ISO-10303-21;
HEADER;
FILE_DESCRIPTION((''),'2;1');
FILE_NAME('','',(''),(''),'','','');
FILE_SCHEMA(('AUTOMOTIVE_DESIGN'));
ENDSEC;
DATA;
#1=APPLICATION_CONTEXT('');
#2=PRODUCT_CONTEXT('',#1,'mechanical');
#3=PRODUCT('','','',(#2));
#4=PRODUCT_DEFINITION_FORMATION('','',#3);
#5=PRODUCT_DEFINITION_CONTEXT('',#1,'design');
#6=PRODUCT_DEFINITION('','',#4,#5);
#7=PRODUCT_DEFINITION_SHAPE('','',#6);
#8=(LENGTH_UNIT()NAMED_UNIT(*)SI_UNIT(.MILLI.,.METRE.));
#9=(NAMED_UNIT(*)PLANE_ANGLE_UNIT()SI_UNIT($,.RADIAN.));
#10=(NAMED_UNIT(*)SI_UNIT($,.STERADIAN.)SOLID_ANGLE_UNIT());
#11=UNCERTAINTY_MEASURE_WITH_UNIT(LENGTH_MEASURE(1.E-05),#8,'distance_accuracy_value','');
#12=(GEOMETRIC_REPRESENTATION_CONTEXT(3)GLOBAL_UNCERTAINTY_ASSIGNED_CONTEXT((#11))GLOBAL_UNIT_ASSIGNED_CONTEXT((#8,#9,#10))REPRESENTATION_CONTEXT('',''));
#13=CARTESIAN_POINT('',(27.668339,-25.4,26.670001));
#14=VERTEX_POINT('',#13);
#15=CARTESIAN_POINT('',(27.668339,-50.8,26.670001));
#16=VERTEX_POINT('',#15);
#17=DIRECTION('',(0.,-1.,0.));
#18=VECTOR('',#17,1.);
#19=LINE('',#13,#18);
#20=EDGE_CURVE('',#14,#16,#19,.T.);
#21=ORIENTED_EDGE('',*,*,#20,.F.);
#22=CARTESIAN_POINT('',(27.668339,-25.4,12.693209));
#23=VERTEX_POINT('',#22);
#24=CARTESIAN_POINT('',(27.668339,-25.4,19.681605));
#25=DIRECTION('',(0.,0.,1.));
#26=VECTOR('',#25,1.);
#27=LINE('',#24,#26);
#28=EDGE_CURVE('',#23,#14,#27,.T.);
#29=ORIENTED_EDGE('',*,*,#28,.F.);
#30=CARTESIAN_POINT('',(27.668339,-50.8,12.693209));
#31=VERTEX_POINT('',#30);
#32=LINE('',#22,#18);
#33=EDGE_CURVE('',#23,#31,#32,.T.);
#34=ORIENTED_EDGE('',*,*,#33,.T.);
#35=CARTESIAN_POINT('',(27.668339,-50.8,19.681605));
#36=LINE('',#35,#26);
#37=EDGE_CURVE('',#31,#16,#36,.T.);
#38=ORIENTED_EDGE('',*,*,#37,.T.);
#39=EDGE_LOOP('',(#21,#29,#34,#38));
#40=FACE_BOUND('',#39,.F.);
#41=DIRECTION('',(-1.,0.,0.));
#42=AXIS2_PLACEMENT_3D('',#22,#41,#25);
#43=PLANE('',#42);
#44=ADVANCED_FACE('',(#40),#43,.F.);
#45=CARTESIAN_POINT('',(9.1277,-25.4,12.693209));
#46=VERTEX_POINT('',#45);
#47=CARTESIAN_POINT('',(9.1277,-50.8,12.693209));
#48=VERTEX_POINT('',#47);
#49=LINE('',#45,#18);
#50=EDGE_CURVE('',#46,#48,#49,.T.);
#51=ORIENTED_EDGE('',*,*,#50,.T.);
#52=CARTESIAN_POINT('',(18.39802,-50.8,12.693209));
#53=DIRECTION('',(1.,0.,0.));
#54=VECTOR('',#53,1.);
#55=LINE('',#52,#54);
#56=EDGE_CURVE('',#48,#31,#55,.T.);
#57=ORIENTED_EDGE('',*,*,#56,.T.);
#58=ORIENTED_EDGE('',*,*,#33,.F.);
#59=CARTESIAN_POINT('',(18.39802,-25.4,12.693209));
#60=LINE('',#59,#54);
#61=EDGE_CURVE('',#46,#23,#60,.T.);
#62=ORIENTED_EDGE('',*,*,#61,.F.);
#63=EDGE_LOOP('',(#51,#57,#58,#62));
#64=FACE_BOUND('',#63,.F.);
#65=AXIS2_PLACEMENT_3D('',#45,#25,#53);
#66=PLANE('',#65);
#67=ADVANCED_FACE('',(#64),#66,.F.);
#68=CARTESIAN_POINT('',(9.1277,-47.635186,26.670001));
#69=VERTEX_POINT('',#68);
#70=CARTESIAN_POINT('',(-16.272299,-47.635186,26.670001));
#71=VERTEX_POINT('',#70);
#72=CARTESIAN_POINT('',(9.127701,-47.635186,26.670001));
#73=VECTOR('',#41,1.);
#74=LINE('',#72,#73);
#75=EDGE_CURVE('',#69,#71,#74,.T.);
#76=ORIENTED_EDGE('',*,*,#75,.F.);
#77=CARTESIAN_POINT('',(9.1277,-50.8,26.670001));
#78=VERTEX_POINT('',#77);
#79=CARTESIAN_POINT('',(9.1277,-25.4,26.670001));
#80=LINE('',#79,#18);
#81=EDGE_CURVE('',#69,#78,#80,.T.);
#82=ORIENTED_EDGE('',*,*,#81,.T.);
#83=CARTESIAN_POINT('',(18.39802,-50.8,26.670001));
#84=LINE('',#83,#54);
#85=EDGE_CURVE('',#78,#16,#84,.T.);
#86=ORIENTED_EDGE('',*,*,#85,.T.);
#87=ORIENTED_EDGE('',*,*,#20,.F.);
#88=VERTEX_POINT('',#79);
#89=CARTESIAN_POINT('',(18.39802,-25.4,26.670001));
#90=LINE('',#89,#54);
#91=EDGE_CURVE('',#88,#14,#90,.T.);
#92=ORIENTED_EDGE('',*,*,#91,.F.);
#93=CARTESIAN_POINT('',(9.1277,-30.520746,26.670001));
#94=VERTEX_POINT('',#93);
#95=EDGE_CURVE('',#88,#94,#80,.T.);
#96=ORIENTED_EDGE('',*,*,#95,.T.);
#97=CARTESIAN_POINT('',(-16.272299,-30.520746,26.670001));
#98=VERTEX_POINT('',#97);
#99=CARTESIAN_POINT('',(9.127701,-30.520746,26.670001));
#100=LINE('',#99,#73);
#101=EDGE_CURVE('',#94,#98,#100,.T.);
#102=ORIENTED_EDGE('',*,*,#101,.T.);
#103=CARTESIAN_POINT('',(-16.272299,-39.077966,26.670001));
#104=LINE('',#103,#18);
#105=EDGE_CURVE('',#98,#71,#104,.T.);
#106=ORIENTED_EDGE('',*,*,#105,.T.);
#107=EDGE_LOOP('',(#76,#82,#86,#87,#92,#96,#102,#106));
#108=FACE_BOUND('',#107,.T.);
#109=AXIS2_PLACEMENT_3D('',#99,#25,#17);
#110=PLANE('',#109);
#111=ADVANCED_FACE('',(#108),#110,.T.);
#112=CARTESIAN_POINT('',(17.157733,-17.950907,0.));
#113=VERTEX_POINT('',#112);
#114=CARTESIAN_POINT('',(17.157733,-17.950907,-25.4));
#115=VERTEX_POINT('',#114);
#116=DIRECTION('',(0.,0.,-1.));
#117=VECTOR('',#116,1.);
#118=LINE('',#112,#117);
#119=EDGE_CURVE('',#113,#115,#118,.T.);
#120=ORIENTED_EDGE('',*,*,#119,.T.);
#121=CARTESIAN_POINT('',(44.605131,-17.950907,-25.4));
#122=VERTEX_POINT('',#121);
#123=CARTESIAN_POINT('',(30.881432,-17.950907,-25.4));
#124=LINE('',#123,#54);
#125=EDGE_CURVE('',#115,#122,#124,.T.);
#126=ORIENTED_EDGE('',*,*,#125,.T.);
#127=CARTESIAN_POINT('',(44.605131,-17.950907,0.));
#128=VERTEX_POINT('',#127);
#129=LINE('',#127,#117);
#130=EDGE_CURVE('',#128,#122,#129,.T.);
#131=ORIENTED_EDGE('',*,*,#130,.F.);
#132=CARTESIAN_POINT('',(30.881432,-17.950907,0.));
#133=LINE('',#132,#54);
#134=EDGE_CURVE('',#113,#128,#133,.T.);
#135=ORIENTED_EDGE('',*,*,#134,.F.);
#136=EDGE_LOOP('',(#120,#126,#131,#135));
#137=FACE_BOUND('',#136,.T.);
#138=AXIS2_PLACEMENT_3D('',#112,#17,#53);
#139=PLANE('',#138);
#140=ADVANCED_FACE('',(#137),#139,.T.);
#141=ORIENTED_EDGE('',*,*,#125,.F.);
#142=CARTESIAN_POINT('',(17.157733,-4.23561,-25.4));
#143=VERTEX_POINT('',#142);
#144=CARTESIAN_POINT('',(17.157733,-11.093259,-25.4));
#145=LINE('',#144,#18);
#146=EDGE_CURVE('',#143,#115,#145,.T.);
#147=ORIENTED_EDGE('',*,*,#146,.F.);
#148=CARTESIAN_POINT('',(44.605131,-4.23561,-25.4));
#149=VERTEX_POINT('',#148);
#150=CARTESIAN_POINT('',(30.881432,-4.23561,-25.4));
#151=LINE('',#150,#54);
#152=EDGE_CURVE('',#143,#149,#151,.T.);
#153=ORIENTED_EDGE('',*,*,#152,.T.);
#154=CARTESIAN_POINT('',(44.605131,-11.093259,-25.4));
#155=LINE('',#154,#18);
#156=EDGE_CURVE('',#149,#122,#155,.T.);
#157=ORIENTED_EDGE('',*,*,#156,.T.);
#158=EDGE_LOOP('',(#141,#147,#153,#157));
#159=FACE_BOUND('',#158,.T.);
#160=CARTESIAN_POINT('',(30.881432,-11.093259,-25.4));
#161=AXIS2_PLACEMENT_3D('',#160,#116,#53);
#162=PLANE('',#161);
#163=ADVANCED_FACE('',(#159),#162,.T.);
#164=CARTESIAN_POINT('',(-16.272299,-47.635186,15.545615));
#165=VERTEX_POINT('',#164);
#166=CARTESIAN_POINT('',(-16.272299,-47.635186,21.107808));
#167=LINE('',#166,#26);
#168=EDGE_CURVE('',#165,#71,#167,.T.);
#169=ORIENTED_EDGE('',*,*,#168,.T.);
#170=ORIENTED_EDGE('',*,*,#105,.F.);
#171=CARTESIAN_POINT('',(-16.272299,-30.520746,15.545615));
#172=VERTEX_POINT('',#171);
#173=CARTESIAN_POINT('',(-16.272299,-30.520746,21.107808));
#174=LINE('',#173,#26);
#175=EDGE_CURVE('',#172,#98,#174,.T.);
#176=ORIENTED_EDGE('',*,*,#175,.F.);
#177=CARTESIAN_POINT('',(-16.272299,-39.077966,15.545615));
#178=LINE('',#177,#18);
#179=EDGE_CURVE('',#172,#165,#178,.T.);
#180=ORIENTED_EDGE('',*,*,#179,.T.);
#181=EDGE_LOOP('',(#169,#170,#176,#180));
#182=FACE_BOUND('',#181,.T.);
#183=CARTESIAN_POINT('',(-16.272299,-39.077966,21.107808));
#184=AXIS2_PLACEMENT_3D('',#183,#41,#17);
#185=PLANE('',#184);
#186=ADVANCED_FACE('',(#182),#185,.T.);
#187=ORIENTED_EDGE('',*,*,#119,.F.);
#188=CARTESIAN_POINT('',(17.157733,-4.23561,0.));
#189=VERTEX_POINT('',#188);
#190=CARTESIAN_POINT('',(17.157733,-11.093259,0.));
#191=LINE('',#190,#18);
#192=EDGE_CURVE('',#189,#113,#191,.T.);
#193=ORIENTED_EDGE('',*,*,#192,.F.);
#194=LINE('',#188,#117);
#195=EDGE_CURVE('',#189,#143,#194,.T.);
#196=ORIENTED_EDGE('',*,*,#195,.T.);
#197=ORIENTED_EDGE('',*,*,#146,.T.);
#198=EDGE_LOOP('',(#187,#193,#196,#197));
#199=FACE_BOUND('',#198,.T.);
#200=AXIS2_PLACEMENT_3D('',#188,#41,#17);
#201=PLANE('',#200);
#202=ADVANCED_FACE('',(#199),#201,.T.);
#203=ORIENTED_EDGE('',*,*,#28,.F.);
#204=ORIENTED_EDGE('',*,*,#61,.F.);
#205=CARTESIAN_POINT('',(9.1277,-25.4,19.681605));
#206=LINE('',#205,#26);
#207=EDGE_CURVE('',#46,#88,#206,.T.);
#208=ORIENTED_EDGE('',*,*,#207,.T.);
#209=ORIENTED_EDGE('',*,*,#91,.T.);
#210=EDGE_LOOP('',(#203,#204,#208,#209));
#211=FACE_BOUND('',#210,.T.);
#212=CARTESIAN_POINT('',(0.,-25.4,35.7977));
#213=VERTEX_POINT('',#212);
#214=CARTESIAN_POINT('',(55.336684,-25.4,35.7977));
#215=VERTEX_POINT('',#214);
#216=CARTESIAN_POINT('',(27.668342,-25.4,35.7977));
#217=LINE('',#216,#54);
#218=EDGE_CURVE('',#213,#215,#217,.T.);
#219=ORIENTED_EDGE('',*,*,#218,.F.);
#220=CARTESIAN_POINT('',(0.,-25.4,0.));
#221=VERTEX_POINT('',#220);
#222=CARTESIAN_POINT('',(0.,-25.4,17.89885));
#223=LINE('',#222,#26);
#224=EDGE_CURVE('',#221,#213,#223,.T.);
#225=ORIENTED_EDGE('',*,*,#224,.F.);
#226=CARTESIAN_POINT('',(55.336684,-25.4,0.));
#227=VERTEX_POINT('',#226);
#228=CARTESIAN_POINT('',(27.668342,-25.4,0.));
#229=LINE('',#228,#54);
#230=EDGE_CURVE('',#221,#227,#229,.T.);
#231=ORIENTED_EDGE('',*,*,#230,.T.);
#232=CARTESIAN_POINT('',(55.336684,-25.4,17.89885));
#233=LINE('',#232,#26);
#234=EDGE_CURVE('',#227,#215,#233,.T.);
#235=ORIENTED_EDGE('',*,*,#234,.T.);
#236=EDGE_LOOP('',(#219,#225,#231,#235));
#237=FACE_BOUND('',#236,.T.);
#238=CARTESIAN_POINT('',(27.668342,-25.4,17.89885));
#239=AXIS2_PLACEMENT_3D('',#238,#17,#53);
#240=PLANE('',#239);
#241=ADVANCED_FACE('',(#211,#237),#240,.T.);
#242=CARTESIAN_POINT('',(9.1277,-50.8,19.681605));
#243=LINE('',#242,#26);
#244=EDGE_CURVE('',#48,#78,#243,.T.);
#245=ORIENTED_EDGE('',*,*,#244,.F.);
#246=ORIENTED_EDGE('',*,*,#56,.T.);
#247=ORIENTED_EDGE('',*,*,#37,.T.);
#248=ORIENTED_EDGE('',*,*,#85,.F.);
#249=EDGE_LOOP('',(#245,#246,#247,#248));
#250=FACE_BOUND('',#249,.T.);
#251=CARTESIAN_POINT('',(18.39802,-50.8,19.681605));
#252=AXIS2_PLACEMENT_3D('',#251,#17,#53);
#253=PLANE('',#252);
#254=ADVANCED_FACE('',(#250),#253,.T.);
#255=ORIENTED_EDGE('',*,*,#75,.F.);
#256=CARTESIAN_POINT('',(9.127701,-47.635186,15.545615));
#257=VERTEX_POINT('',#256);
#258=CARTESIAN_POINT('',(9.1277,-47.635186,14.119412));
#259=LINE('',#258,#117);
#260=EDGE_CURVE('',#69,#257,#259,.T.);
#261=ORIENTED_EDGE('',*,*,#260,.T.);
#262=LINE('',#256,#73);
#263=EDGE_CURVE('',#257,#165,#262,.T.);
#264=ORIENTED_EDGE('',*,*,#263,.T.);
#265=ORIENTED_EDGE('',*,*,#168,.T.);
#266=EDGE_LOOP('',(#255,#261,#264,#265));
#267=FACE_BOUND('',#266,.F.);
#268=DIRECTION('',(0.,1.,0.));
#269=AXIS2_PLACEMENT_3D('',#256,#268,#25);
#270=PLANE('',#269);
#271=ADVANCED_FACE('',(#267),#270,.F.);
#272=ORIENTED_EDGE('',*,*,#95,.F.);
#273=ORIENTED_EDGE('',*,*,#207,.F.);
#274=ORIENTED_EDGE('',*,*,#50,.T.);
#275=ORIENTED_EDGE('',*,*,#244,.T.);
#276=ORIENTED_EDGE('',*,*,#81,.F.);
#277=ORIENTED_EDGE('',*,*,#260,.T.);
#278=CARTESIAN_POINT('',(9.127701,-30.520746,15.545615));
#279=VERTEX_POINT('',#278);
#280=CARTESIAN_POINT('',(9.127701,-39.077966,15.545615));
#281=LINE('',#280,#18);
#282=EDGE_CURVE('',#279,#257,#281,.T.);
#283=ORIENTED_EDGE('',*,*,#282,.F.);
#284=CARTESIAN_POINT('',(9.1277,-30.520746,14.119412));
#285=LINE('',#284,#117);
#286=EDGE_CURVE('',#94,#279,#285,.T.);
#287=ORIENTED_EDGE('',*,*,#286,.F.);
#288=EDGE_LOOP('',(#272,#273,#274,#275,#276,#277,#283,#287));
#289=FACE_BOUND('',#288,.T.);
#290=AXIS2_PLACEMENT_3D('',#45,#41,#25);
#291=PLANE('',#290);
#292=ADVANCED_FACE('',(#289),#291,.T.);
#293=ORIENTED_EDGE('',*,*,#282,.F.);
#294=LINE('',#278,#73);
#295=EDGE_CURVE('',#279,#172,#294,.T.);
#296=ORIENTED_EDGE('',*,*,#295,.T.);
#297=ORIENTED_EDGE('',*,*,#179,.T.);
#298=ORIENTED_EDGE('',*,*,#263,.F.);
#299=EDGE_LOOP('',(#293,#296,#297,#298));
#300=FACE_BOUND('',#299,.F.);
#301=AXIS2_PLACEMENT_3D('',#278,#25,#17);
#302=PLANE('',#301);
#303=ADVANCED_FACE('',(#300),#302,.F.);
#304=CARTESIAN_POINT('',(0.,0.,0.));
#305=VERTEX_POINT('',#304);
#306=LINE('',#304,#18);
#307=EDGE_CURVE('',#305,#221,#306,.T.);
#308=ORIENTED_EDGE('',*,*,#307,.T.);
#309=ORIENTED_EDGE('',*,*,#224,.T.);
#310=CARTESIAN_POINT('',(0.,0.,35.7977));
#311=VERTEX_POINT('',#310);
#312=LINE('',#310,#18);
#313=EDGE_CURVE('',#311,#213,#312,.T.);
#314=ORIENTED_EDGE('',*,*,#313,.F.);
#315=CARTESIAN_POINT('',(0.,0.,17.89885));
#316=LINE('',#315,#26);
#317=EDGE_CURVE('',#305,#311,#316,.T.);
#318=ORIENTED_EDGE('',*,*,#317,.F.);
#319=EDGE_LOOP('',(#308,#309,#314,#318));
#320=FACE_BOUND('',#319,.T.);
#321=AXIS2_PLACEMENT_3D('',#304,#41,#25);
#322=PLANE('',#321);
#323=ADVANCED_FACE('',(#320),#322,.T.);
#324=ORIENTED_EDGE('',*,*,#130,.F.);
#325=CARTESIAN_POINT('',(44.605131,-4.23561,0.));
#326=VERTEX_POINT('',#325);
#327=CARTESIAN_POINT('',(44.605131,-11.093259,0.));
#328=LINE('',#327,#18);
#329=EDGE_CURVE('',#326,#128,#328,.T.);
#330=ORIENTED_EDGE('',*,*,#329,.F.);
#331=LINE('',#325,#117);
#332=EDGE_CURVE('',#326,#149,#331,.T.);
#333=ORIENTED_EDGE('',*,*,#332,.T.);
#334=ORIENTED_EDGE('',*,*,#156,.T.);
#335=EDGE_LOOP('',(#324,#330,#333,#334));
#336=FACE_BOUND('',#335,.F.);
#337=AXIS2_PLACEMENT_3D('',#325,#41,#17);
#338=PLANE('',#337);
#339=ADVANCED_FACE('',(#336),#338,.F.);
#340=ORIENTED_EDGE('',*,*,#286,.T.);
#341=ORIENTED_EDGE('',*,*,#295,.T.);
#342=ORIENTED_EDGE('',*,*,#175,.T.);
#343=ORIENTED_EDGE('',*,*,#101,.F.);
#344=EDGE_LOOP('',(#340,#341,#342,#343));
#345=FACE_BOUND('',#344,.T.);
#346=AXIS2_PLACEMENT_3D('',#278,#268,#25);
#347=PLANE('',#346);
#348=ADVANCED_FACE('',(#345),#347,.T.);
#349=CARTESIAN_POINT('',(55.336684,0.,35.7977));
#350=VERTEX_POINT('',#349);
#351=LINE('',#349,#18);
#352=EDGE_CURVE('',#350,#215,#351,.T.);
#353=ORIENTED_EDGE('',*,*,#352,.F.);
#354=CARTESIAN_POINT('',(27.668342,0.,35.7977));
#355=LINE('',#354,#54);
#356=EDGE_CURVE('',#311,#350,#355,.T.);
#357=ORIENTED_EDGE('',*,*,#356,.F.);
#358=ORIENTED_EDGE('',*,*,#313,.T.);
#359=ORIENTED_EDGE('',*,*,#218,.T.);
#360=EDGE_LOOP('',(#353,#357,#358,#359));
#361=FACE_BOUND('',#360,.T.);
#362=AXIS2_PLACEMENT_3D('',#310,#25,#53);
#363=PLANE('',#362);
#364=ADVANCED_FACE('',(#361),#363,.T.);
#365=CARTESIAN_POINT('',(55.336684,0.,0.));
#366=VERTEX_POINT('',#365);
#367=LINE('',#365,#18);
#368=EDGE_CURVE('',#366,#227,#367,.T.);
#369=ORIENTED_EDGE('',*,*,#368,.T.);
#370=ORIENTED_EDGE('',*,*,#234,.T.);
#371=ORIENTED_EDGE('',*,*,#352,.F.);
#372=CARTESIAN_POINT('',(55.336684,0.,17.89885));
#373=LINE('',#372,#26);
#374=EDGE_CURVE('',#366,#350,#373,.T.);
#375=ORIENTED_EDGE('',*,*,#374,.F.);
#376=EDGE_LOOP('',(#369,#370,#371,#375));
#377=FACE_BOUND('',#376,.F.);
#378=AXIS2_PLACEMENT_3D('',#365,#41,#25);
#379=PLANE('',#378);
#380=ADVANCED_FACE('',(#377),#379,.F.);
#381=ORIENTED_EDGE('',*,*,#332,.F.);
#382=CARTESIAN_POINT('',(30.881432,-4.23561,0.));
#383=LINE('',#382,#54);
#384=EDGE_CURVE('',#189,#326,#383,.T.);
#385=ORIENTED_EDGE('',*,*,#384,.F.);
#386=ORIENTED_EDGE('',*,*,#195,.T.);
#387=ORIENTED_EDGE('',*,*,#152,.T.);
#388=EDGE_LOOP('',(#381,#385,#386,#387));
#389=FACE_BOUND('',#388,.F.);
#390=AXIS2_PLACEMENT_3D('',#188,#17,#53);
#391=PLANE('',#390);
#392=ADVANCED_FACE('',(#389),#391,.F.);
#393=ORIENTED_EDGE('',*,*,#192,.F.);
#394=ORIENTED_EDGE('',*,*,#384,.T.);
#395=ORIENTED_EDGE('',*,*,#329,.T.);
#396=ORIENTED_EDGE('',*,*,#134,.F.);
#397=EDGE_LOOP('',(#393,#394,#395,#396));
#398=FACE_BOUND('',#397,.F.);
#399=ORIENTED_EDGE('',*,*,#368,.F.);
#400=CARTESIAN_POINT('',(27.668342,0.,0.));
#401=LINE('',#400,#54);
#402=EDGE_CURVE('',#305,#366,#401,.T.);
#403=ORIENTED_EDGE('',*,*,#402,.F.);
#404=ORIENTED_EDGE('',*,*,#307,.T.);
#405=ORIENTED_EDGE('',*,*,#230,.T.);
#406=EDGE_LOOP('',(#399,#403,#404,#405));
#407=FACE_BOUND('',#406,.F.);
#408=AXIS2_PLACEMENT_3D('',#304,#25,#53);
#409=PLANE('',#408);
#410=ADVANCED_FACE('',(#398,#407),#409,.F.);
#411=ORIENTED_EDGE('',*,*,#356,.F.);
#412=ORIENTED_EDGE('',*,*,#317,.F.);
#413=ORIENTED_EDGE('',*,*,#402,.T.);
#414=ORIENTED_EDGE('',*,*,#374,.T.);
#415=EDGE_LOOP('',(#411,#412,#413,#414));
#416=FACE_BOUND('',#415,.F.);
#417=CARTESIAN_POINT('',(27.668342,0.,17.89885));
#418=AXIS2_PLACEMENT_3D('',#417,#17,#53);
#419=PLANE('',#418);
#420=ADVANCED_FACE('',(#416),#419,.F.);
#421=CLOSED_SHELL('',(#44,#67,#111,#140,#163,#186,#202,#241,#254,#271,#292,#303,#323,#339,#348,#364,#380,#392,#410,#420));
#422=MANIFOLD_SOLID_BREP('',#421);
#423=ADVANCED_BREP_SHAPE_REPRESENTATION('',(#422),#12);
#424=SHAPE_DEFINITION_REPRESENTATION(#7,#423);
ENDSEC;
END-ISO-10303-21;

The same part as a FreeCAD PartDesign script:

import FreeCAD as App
import Part
import Sketcher
Q = App.Units.Quantity

doc = App.newDocument("Part")
body = doc.addObject("PartDesign::Body", "Body")

# Sketch on XZ plane
sketch1 = doc.addObject("Sketcher::SketchObject", "Sketch")
body.addObject(sketch1)
sketch1.AttachmentSupport = (doc.XZ_Plane, [""])
sketch1.MapMode = "FlatFace"
sketch1.addGeometry([
    Part.LineSegment(App.Vector(0, 36, 0), App.Vector(0, 0, 0)),
    Part.LineSegment(App.Vector(0, 0, 0), App.Vector(55, 0, 0)),
    Part.LineSegment(App.Vector(55, 0, 0), App.Vector(55, 36, 0)),
    Part.LineSegment(App.Vector(55, 36, 0), App.Vector(0, 36, 0)),
], False)
sketch1.addConstraint([
    Sketcher.Constraint("Coincident", 0, 2, 1, 1),
    Sketcher.Constraint("Coincident", 1, 2, 2, 1),
    Sketcher.Constraint("Coincident", 2, 2, 3, 1),
    Sketcher.Constraint("Coincident", 3, 2, 0, 1),
    Sketcher.Constraint("Vertical", 0),
    Sketcher.Constraint("Horizontal", 1),
    Sketcher.Constraint("Vertical", 2),
    Sketcher.Constraint("Horizontal", 3),
    Sketcher.Constraint("Coincident", 0, 2, -1, 1),
    Sketcher.Constraint("DistanceY", 0, 2, 0, 1, 35.7977),
    Sketcher.Constraint("DistanceX", 1, 1, 1, 2, 55.336684),
])
pad1 = doc.addObject("PartDesign::Pad", "Pad")
body.addObject(pad1)
pad1.Profile = sketch1
pad1.Length = Q("1 in")

# Sketch on XZ plane
sketch2 = doc.addObject("Sketcher::SketchObject", "Sketch001")
body.addObject(sketch2)
sketch2.AttachmentSupport = (doc.XZ_Plane, [""])
sketch2.MapMode = "FlatFace"
sketch2.AttachmentOffset = App.Placement(App.Vector(0, 0, 1 * 25.4), App.Rotation())
sketch2.addGeometry([
    Part.LineSegment(App.Vector(9, 27, 0), App.Vector(9, 13, 0)),
    Part.LineSegment(App.Vector(9, 13, 0), App.Vector(28, 13, 0)),
    Part.LineSegment(App.Vector(28, 13, 0), App.Vector(28, 27, 0)),
    Part.LineSegment(App.Vector(28, 27, 0), App.Vector(9, 27, 0)),
], False)
sketch2.addConstraint([
    Sketcher.Constraint("Coincident", 0, 2, 1, 1),
    Sketcher.Constraint("Coincident", 1, 2, 2, 1),
    Sketcher.Constraint("Coincident", 2, 2, 3, 1),
    Sketcher.Constraint("Coincident", 3, 2, 0, 1),
    Sketcher.Constraint("Vertical", 0),
    Sketcher.Constraint("Horizontal", 1),
    Sketcher.Constraint("Vertical", 2),
    Sketcher.Constraint("Horizontal", 3),
    Sketcher.Constraint("DistanceY", -1, 1, 2, 2, Q("1.05 in")),
    Sketcher.Constraint("DistanceX", 1, 1, 1, 2, 18.540639),
    Sketcher.Constraint("DistanceX", -1, 1, 0, 2, 9.1277),
    Sketcher.Constraint("DistanceY", 0, 2, 0, 1, 13.976792),
])
pad2 = doc.addObject("PartDesign::Pad", "Pad001")
body.addObject(pad2)
pad2.Profile = sketch2
pad2.Length = Q("1 in")

# Sketch on YZ plane
sketch3 = doc.addObject("Sketcher::SketchObject", "Sketch002")
body.addObject(sketch3)
sketch3.AttachmentSupport = (doc.YZ_Plane, [""])
sketch3.MapMode = "FlatFace"
sketch3.AttachmentOffset = App.Placement(App.Vector(0, 0, 9.127701), App.Rotation())
sketch3.addGeometry([
    Part.LineSegment(App.Vector(-31, 27, 0), App.Vector(-31, 16, 0)),
    Part.LineSegment(App.Vector(-31, 16, 0), App.Vector(-48, 16, 0)),
    Part.LineSegment(App.Vector(-48, 16, 0), App.Vector(-48, 27, 0)),
    Part.LineSegment(App.Vector(-48, 27, 0), App.Vector(-31, 27, 0)),
], False)
sketch3.addConstraint([
    Sketcher.Constraint("Coincident", 0, 2, 1, 1),
    Sketcher.Constraint("Coincident", 1, 2, 2, 1),
    Sketcher.Constraint("Coincident", 2, 2, 3, 1),
    Sketcher.Constraint("Coincident", 3, 2, 0, 1),
    Sketcher.Constraint("Vertical", 0),
    Sketcher.Constraint("Horizontal", 1),
    Sketcher.Constraint("Vertical", 2),
    Sketcher.Constraint("Horizontal", 3),
    Sketcher.Constraint("DistanceY", -1, 1, 2, 2, Q("1.05 in")),
    Sketcher.Constraint("DistanceX", 1, 2, 1, 1, 17.11444),
    Sketcher.Constraint("DistanceY", 0, 2, 0, 1, 11.124386),
    Sketcher.Constraint("DistanceX", 0, 2, -1, 1, 30.520746),
])
pad3 = doc.addObject("PartDesign::Pad", "Pad002")
body.addObject(pad3)
pad3.Profile = sketch3
pad3.Length = Q("1 in")
pad3.Reversed = True

# Sketch on XY plane
sketch4 = doc.addObject("Sketcher::SketchObject", "Sketch003")
body.addObject(sketch4)
sketch4.AttachmentSupport = (doc.XY_Plane, [""])
sketch4.MapMode = "FlatFace"
sketch4.addGeometry([
    Part.LineSegment(App.Vector(17, -18, 0), App.Vector(17, -4, 0)),
    Part.LineSegment(App.Vector(17, -4, 0), App.Vector(45, -4, 0)),
    Part.LineSegment(App.Vector(45, -4, 0), App.Vector(45, -18, 0)),
    Part.LineSegment(App.Vector(45, -18, 0), App.Vector(17, -18, 0)),
], False)
sketch4.addConstraint([
    Sketcher.Constraint("Coincident", 0, 2, 1, 1),
    Sketcher.Constraint("Coincident", 1, 2, 2, 1),
    Sketcher.Constraint("Coincident", 2, 2, 3, 1),
    Sketcher.Constraint("Coincident", 3, 2, 0, 1),
    Sketcher.Constraint("Vertical", 0),
    Sketcher.Constraint("Horizontal", 1),
    Sketcher.Constraint("Vertical", 2),
    Sketcher.Constraint("Horizontal", 3),
    Sketcher.Constraint("DistanceX", 1, 1, 1, 2, 27.447399),
    Sketcher.Constraint("DistanceY", 0, 1, 0, 2, 13.715297),
    Sketcher.Constraint("DistanceY", 0, 2, -1, 1, 4.23561),
    Sketcher.Constraint("DistanceX", -1, 1, 1, 2, 44.605131),
])
pad4 = doc.addObject("PartDesign::Pad", "Pad003")
body.addObject(pad4)
pad4.Profile = sketch4
pad4.Length = Q("1 in")
pad4.Reversed = True

doc.recompute()
